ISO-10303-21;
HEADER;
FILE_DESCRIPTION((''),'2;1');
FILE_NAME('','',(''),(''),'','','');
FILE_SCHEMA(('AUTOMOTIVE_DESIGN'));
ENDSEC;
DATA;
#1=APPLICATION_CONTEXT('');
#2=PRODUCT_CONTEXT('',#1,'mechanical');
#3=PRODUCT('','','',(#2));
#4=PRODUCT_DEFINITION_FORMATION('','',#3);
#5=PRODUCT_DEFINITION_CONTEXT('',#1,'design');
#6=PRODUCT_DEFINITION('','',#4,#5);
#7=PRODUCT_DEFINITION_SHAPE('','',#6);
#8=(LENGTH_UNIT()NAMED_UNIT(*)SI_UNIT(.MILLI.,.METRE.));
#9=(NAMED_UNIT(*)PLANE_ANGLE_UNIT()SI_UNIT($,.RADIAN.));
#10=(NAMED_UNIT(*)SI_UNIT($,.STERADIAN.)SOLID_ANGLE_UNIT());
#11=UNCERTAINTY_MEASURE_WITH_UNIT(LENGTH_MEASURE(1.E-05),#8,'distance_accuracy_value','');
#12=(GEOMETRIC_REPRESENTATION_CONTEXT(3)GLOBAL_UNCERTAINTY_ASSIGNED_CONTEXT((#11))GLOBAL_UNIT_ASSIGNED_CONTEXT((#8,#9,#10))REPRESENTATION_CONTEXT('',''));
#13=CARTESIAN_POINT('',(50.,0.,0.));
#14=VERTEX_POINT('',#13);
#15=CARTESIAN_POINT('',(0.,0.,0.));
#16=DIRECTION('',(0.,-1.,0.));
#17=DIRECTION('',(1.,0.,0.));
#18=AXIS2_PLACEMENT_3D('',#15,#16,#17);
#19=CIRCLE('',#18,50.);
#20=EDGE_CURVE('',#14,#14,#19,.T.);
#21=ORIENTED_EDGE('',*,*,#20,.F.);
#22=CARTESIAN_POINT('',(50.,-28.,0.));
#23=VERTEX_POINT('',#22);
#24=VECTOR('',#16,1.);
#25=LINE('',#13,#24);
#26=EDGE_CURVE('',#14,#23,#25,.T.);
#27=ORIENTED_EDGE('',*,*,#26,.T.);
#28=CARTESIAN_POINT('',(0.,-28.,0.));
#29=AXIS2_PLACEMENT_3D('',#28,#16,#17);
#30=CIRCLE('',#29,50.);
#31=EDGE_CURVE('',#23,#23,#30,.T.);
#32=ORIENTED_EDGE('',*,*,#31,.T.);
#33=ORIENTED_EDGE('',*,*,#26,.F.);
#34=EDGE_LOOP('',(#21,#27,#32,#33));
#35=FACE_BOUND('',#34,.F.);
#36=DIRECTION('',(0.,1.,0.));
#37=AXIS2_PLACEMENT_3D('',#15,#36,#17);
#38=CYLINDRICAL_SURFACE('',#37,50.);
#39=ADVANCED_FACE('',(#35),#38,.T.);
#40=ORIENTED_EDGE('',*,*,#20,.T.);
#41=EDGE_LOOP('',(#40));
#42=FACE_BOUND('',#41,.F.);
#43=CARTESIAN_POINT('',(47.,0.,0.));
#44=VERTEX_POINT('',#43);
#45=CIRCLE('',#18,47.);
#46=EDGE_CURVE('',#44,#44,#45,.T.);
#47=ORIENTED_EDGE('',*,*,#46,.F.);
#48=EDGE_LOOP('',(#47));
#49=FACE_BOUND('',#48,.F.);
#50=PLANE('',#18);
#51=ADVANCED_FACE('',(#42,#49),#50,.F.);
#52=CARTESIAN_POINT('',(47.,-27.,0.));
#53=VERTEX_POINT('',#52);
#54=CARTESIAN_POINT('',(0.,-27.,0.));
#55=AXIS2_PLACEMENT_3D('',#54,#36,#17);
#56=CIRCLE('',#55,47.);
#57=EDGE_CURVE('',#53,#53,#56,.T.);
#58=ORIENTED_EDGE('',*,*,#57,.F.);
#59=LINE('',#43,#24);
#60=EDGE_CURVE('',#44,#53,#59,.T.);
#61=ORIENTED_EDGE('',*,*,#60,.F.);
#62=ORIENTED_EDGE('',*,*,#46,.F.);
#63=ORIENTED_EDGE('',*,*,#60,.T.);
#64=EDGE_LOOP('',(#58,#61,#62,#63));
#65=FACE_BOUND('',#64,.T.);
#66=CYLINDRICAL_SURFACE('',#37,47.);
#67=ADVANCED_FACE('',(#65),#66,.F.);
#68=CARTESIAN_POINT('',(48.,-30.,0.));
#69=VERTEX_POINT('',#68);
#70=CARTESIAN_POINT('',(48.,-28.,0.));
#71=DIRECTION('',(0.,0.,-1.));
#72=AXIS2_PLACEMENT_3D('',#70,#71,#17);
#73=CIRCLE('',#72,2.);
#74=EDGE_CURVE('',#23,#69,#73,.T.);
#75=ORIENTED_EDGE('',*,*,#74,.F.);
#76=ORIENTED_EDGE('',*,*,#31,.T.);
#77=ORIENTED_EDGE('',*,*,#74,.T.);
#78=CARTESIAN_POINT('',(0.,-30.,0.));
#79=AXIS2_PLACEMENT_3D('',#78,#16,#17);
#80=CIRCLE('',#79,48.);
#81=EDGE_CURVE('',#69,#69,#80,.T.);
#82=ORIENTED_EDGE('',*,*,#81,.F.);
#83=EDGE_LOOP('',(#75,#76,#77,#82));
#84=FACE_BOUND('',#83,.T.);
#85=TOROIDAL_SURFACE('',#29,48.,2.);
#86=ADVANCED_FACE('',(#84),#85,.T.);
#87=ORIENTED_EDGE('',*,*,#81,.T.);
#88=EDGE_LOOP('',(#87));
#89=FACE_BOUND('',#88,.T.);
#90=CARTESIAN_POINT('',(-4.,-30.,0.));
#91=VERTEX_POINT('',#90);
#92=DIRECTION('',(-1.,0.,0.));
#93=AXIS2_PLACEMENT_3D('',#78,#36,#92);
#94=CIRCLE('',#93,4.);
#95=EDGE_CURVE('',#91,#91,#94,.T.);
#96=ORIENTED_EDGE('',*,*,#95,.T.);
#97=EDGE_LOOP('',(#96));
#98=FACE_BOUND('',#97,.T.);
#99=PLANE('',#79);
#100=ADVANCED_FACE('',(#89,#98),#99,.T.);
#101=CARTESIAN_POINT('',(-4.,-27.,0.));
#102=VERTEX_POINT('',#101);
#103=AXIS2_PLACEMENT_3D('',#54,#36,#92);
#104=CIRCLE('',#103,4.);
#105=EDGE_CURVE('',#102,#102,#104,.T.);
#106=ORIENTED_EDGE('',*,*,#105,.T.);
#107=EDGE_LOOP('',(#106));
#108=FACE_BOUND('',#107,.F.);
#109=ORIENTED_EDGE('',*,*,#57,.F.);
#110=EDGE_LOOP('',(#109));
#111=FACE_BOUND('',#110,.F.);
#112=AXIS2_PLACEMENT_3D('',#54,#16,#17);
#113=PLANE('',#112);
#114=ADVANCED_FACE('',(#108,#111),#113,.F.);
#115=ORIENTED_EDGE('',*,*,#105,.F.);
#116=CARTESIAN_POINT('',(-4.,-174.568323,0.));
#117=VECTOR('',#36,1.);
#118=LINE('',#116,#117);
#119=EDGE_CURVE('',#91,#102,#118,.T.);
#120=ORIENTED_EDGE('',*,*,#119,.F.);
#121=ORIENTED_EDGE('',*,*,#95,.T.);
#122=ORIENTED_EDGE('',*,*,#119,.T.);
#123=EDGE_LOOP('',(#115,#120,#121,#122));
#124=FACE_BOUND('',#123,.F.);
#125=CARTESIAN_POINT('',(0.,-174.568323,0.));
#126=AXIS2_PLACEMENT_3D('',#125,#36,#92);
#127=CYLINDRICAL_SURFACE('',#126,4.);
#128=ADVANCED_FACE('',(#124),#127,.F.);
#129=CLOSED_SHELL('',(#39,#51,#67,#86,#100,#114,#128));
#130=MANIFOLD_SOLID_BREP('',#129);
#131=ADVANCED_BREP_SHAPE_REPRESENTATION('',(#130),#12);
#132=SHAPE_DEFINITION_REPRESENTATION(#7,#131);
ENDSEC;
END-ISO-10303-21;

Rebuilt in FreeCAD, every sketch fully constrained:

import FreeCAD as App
import Part
import Sketcher
from FreeCAD import Vector


def edges_at(feature, points):
    """Names of the edges that pass closest to the given points."""
    edges = feature.Shape.Edges
    near = lambda p: min(range(len(edges)), key=lambda i: edges[i].distToShape(Part.Vertex(*p))[0])
    return sorted({f"Edge{near(p) + 1}" for p in points})


def faces_at(feature, points):
    """Names of the faces that lie closest to the given points."""
    faces = feature.Shape.Faces
    near = lambda p: min(range(len(faces)), key=lambda i: faces[i].distToShape(Part.Vertex(*p))[0])
    return sorted({f"Face{near(p) + 1}" for p in points})

doc = App.newDocument("Part")
body = doc.addObject("PartDesign::Body", "Body")

# Sketch on XZ plane
sketch1 = doc.addObject("Sketcher::SketchObject", "Sketch")
body.addObject(sketch1)
sketch1.AttachmentSupport = (doc.XZ_Plane, [""])
sketch1.MapMode = "FlatFace"
sketch1.addGeometry(Part.Circle(Vector(0, 0, 0), Vector(0, 0, 1), 50), False)
sketch1.addConstraint([
    Sketcher.Constraint("Coincident", 0, 3, -1, 1),
    Sketcher.Constraint("Diameter", 0, 100.0),
])
pad1 = doc.addObject("PartDesign::Pad", "Pad")
body.addObject(pad1)
pad1.Profile = sketch1
pad1.Length = 30
doc.recompute()

thickness = doc.addObject("PartDesign::Thickness", "Thickness")
body.addObject(thickness)
thickness.Base = (pad1, faces_at(pad1, [(0, 0, 0)]))
thickness.Value = 3
thickness.Reversed = True
thickness.Join = "Arc"
doc.recompute()

fillet = doc.addObject("PartDesign::Fillet", "Fillet")
body.addObject(fillet)
fillet.Base = (thickness, edges_at(thickness, [(-50, -30, 0)]))
fillet.Radius = 2

# Sketch on XZ plane
sketch2 = doc.addObject("Sketcher::SketchObject", "Sketch001")
body.addObject(sketch2)
sketch2.AttachmentSupport = (doc.XZ_Plane, [""])
sketch2.MapMode = "FlatFace"
sketch2.AttachmentOffset = App.Placement(Vector(0, 0, 30), App.Rotation())
sketch2.addGeometry(Part.Circle(Vector(0, 0, 0), Vector(0, 0, 1), 4), False)
sketch2.addConstraint([
    Sketcher.Constraint("Coincident", 0, 3, -1, 1),
    Sketcher.Constraint("Diameter", 0, 8.0),
])
doc.recompute()
hole = doc.addObject("PartDesign::Hole", "Hole")
body.addObject(hole)
hole.Profile = sketch2
hole.ThreadType = "None"
hole.Diameter = 8
hole.DepthType = "ThroughAll"

doc.recompute()
